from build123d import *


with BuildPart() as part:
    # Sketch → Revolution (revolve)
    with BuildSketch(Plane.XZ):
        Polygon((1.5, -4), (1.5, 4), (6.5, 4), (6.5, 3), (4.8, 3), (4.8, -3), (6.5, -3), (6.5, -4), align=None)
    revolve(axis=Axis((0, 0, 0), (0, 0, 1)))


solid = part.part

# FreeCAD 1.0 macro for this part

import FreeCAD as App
import Part
import Sketcher
Q = App.Units.Quantity


def add_polygon(sketch, points):
    """Adds a closed chain of lines whose ends are joined by coincident constraints."""
    first, n = sketch.GeometryCount, len(points)
    for a, b in zip(points, points[1:] + points[:1]):
        sketch.addGeometry(Part.LineSegment(App.Vector(*a, 0), App.Vector(*b, 0)), False)
    for i in range(n):
        sketch.addConstraint(Sketcher.Constraint("Coincident", first + i, 2, first + (i + 1) % n, 1))

doc = App.newDocument("Part")
body = doc.addObject("PartDesign::Body", "Body")

sketch1 = body.newObject("Sketcher::SketchObject", "Sketch")
sketch1.AttachmentSupport = (doc.getObject("XZ_Plane"), [""])
sketch1.MapMode = "FlatFace"
add_polygon(sketch1, [(1.5, 4), (1.5, -4), (6.5, -4), (6.5, -3), (4.8, -3), (4.8, 3), (6.5, 3), (6.5, 4)])
sketch1.addConstraint([
    Sketcher.Constraint("Vertical", 0),
    Sketcher.Constraint("Horizontal", 1),
    Sketcher.Constraint("Vertical", 2),
    Sketcher.Constraint("Horizontal", 3),
    Sketcher.Constraint("Vertical", 4),
    Sketcher.Constraint("Horizontal", 5),
    Sketcher.Constraint("Vertical", 6),
    Sketcher.Constraint("Horizontal", 7),
    Sketcher.Constraint("Symmetric", 2, 2, 5, 2, -1),
    Sketcher.Constraint("Equal", 2, 6),
    Sketcher.Constraint("DistanceX", 1, 1, 1, 2, Q("5 mm")),
    Sketcher.Constraint("DistanceY", 0, 2, 0, 1, Q("8 mm")),
    Sketcher.Constraint("DistanceY", 2, 1, 2, 2, Q("1 mm")),
    Sketcher.Constraint("DistanceX", 3, 2, 3, 1, Q("1.7 mm")),
    Sketcher.Constraint("DistanceX", -1, 1, 0, 2, Q("1.5 mm")),
])
revolution = body.newObject("PartDesign::Revolution", "Revolution")
revolution.Profile = sketch1
revolution.ReferenceAxis = (sketch1, ["V_Axis"])
revolution.Angle = 360

doc.recompute()
